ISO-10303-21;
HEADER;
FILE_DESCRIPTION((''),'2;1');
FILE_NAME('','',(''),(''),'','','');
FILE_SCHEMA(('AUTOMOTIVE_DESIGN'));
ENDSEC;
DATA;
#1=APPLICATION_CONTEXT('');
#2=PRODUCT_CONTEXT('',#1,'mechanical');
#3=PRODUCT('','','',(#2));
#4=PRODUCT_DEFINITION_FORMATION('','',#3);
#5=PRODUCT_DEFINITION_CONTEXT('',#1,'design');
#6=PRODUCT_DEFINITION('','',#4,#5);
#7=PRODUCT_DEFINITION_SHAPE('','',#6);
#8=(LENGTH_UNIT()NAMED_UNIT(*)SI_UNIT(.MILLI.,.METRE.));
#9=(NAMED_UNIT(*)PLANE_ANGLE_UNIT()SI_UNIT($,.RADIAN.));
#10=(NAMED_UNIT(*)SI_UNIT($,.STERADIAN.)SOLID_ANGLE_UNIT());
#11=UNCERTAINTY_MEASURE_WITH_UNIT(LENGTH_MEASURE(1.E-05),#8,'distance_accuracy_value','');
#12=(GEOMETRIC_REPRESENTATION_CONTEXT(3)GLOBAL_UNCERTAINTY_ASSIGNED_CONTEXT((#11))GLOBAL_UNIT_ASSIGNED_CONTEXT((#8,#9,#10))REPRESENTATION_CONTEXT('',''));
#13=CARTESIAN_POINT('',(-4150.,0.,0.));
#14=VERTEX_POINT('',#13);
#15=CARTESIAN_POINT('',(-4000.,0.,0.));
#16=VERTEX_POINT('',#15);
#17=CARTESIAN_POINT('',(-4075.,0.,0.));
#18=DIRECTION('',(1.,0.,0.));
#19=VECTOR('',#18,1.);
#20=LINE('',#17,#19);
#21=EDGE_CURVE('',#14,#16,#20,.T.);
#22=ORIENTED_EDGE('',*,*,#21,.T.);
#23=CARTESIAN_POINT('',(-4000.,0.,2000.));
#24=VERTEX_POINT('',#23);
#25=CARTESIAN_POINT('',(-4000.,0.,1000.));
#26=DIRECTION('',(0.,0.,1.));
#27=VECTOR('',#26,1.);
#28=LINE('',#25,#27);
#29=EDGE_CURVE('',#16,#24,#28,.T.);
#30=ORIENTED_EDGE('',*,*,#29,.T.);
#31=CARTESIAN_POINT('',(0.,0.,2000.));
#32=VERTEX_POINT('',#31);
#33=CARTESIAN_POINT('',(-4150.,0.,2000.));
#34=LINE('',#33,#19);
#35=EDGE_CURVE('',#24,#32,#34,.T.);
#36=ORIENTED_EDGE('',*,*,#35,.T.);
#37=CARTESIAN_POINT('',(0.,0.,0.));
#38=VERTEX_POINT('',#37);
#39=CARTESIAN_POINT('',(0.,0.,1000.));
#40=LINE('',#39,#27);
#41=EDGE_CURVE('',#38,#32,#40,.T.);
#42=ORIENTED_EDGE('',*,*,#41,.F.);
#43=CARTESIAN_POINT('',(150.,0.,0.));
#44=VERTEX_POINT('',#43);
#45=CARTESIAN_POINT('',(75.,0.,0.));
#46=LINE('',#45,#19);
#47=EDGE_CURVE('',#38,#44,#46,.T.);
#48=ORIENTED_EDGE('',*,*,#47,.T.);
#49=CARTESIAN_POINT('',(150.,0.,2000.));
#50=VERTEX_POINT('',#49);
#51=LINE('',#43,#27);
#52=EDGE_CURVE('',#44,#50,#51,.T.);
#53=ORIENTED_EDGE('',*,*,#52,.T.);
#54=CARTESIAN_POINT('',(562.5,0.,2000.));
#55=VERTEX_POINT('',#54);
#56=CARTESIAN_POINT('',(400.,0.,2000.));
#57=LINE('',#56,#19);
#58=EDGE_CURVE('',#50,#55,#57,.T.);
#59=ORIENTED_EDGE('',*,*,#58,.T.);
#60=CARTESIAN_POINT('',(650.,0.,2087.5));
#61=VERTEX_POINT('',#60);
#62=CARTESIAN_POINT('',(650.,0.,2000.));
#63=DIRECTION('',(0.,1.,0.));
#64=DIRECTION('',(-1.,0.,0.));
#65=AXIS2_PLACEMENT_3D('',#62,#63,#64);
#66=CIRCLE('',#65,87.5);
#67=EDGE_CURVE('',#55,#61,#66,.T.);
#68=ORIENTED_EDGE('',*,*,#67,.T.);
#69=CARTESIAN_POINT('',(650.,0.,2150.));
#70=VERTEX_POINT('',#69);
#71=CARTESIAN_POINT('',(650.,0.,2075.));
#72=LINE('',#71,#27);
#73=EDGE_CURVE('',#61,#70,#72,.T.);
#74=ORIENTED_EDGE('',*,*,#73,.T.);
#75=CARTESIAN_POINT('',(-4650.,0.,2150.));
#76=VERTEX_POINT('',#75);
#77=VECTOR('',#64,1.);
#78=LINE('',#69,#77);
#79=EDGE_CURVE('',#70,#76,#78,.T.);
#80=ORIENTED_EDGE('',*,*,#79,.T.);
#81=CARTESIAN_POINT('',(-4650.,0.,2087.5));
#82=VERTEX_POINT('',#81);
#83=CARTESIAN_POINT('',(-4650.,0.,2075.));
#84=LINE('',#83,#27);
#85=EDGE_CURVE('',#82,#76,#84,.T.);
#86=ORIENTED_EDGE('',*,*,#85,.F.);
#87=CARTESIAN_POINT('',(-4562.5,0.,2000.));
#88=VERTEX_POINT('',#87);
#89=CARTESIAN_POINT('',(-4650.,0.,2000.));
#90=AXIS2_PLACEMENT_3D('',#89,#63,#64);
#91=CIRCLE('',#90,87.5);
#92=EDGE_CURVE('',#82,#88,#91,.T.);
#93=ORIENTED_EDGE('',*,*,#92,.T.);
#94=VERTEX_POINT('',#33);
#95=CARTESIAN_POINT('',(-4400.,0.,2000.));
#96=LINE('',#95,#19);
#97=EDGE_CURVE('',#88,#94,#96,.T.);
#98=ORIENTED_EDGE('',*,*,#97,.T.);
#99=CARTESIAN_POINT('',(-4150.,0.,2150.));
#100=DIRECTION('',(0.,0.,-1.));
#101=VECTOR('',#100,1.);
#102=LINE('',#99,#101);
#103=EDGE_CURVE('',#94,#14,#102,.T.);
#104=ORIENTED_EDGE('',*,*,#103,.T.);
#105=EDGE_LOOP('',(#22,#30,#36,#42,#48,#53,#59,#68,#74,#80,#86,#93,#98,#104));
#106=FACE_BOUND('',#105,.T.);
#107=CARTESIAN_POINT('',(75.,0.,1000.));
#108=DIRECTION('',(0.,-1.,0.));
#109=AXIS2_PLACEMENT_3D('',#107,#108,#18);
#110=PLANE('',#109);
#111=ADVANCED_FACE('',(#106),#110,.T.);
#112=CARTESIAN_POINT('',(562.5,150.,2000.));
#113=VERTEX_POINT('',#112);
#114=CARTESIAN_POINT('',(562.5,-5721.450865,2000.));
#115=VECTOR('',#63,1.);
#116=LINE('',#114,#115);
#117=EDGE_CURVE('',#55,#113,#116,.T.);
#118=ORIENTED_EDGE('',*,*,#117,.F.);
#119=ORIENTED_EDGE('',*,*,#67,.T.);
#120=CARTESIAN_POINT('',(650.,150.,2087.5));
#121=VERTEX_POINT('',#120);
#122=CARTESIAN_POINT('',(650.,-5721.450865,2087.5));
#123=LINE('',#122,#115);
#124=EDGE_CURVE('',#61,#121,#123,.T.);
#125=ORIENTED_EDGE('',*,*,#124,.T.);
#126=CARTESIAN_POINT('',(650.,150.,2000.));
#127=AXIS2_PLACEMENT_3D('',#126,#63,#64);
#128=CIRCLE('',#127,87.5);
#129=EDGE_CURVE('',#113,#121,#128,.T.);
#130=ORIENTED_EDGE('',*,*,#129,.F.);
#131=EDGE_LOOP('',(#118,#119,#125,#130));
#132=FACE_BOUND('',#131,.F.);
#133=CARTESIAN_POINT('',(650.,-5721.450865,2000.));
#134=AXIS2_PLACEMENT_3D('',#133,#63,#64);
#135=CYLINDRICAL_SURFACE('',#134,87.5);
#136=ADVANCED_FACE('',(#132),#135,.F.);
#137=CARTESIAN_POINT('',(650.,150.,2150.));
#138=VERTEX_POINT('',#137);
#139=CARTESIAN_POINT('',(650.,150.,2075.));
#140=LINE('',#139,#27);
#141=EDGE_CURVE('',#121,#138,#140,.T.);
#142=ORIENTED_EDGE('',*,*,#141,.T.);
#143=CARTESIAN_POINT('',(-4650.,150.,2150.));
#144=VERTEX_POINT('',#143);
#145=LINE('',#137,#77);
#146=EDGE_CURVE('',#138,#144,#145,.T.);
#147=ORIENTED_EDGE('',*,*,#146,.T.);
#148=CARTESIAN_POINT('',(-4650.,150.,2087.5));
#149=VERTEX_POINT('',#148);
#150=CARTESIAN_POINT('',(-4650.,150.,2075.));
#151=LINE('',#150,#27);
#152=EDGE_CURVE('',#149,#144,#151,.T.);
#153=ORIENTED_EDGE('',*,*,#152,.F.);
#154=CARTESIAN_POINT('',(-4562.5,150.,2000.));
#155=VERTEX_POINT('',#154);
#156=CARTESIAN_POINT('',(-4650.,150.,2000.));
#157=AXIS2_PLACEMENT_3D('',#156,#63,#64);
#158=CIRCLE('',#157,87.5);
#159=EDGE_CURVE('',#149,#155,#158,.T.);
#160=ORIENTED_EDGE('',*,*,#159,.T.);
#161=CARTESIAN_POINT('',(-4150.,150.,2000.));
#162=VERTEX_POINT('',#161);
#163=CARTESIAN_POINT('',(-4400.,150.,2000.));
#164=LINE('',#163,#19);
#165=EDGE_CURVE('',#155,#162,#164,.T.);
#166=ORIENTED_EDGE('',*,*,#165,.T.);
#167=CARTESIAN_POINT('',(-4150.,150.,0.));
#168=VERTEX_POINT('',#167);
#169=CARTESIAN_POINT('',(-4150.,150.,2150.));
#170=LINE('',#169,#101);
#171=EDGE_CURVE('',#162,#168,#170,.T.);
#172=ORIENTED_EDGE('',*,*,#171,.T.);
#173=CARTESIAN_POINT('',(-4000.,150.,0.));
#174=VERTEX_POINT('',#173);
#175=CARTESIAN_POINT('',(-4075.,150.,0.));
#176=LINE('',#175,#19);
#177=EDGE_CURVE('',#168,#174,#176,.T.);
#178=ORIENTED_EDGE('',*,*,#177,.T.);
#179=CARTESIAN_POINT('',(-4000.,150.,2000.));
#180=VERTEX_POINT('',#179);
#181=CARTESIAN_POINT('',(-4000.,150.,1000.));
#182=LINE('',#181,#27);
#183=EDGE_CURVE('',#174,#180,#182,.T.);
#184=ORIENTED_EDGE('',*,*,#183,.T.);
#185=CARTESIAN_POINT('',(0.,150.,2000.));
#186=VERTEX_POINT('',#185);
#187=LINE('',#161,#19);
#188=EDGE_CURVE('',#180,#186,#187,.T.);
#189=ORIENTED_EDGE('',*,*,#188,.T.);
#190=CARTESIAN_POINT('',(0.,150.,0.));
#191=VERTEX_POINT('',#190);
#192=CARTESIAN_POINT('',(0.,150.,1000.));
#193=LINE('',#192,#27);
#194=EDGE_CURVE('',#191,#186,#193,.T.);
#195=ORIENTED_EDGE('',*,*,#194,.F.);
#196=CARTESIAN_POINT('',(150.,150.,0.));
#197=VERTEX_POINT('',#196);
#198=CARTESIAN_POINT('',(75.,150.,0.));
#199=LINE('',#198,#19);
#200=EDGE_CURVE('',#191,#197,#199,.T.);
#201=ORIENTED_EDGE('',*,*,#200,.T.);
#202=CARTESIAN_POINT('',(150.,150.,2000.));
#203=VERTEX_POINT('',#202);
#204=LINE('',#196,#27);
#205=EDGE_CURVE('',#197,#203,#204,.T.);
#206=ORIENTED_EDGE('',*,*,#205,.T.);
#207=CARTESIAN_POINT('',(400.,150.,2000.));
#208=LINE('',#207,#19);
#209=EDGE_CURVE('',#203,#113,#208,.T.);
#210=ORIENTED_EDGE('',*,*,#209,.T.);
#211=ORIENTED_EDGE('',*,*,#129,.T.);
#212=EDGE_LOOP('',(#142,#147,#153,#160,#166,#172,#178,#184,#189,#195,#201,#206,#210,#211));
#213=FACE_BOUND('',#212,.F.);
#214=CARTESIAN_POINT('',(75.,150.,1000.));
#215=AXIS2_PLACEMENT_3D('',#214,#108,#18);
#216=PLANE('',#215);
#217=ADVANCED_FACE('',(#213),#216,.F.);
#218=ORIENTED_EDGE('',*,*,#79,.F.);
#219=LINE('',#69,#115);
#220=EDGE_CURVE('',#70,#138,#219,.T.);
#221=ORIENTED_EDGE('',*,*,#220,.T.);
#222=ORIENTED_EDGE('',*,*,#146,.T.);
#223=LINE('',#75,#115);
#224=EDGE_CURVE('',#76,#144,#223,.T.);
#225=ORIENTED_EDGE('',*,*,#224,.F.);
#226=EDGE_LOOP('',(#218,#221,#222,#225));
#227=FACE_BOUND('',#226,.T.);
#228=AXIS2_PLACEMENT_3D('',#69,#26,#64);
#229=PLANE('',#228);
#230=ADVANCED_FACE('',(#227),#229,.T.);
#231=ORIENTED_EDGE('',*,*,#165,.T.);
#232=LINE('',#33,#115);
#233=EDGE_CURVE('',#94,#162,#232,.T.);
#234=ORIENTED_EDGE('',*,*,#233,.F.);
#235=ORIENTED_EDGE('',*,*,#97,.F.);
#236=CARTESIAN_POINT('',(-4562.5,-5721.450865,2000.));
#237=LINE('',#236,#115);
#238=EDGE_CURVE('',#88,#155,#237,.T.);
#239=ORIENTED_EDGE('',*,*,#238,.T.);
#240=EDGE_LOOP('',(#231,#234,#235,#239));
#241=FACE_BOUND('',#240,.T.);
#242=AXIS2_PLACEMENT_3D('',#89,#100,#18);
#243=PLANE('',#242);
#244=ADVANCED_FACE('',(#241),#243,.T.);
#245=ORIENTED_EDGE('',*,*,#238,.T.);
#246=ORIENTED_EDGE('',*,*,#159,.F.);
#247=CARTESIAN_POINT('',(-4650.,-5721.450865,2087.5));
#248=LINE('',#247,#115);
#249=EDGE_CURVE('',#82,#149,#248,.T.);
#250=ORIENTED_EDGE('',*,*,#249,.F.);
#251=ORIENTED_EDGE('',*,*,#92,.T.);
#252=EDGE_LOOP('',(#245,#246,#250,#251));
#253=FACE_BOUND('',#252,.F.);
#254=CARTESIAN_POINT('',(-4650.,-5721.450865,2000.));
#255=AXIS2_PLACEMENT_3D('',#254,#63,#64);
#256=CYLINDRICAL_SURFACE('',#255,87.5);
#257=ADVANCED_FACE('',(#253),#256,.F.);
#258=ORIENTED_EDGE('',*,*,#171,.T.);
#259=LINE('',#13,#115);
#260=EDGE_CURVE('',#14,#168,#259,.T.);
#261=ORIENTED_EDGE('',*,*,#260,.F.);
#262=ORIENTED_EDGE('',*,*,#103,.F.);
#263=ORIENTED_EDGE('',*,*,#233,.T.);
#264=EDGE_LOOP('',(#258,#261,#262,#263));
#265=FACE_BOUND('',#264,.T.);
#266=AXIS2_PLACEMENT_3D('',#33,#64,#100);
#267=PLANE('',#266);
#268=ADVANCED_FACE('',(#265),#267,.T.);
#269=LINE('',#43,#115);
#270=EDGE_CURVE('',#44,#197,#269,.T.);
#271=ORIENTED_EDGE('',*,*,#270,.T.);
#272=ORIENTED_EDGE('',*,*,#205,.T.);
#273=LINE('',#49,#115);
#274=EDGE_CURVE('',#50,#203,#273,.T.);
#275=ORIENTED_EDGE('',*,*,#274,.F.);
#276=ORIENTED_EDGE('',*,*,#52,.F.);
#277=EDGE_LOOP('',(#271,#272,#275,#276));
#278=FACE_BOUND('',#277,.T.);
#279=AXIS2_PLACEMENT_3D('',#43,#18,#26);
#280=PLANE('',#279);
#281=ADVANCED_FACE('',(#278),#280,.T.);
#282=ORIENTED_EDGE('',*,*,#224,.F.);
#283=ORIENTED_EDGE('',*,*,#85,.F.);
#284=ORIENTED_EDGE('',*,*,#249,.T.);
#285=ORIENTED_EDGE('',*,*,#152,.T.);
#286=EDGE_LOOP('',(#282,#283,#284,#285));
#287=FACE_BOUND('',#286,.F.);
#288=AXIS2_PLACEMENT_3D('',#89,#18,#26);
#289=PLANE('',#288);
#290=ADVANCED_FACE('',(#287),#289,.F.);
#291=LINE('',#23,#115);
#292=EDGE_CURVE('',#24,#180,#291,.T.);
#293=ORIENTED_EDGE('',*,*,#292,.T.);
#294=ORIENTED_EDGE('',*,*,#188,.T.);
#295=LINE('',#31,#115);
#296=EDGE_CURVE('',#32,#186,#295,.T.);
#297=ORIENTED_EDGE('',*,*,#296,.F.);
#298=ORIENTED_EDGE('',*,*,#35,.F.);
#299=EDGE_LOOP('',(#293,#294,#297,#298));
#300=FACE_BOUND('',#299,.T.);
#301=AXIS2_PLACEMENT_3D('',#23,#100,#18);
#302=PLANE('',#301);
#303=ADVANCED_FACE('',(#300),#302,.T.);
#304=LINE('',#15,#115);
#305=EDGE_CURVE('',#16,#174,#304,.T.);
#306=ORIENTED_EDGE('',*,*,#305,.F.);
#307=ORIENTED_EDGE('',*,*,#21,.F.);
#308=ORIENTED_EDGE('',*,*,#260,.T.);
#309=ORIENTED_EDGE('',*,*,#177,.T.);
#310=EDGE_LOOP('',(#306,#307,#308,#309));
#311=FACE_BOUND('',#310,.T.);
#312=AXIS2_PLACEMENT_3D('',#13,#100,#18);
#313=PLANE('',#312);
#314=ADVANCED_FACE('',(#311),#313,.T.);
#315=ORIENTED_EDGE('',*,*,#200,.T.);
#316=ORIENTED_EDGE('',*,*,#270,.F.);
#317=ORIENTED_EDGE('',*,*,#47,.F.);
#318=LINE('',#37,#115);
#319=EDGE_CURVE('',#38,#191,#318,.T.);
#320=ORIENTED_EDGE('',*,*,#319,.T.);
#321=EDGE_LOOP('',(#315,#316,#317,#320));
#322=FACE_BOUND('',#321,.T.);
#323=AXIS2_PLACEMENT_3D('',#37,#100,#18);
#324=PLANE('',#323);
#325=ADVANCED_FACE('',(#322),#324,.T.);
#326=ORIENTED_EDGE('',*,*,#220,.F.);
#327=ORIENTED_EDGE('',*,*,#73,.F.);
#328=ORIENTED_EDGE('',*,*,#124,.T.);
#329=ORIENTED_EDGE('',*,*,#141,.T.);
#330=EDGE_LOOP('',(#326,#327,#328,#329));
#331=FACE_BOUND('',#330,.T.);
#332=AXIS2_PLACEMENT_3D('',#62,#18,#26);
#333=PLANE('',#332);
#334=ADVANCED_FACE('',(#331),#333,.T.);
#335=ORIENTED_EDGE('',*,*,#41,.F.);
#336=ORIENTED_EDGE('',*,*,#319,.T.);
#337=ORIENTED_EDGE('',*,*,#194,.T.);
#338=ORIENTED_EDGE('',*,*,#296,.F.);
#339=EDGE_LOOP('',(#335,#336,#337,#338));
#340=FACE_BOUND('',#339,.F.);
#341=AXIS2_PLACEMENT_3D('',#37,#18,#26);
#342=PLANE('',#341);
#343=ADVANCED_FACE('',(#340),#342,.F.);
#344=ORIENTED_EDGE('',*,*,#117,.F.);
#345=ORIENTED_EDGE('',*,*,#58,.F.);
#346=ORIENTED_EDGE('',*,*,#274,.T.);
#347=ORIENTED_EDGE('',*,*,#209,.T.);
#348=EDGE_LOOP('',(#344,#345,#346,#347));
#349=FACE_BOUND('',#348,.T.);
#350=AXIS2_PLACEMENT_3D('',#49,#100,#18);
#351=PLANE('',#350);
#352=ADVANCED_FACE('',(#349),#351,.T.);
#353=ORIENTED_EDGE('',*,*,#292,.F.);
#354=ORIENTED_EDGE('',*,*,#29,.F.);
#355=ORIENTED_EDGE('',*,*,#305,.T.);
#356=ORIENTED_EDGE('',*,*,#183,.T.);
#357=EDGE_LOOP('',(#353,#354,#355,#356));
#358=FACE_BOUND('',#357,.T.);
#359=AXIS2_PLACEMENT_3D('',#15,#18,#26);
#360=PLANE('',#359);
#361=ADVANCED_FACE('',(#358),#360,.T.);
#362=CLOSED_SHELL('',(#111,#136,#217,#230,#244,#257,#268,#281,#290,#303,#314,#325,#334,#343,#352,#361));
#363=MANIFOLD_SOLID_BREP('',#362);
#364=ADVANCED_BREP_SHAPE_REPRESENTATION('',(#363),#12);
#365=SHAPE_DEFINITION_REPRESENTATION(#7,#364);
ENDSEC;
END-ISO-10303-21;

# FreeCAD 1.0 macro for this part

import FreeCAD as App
import Part
import Sketcher

V = App.Vector


def add_polygon(sketch, points):
    """Adds a closed chain of lines whose ends are joined by coincident constraints."""
    first, n = sketch.GeometryCount, len(points)
    for a, b in zip(points, points[1:] + points[:1]):
        sketch.addGeometry(Part.LineSegment(App.Vector(*a, 0), App.Vector(*b, 0)), False)
    for i in range(n):
        sketch.addConstraint(Sketcher.Constraint("Coincident", first + i, 2, first + (i + 1) % n, 1))

doc = App.newDocument("Part")
body = doc.addObject("PartDesign::Body", "Body")

# Sketch on XZ plane
sketch1 = body.newObject("Sketcher::SketchObject", "Sketch")
sketch1.AttachmentSupport = (doc.getObject("XZ_Plane"), [""])
sketch1.MapMode = "FlatFace"
add_polygon(sketch1, [(0, 2000), (0, 0), (150, 0), (150, 2000), (650, 2000), (650, 2150), (-4650, 2150), (-4650, 2000), (-4150, 2000), (-4150, 0), (-4000, 0), (-4000, 2000)])  # lines 0-11
sketch1.addConstraint([
    Sketcher.Constraint("Vertical", 0),
    Sketcher.Constraint("Horizontal", 1),
    Sketcher.Constraint("Vertical", 2),
    Sketcher.Constraint("Horizontal", 3),
    Sketcher.Constraint("Vertical", 4),
    Sketcher.Constraint("Horizontal", 5),
    Sketcher.Constraint("Vertical", 6),
    Sketcher.Constraint("Horizontal", 7),
    Sketcher.Constraint("Vertical", 8),
    Sketcher.Constraint("Horizontal", 9),
    Sketcher.Constraint("Vertical", 10),
    Sketcher.Constraint("Horizontal", 11),
    Sketcher.Constraint("Coincident", 0, 2, -1, 1),
    Sketcher.Constraint("PointOnObject", 8, 2, -1),
    Sketcher.Constraint("Horizontal", 3, 2, 6, 2),
    Sketcher.Constraint("Horizontal", 7, 2, 10, 2),
    Sketcher.Constraint("Equal", 3, 7),
    Sketcher.Constraint("Equal", 1, 9),
    Sketcher.Constraint("Equal", 9, 4),
    Sketcher.Constraint("DistanceX", 1, 1, 1, 2, 150.0),
    Sketcher.Constraint("DistanceX", 3, 1, 3, 2, 500.0),
    Sketcher.Constraint("DistanceX", 5, 2, 5, 1, 5300.0),
    Sketcher.Constraint("DistanceY", 0, 2, 0, 1, 2000.0),
])
pad1 = body.newObject("PartDesign::Pad", "Pad")
pad1.Profile = sketch1
pad1.Length = 150
pad1.Reversed = True

# Sketch on XZ plane
sketch2 = body.newObject("Sketcher::SketchObject", "Sketch001")
sketch2.AttachmentSupport = (doc.getObject("XZ_Plane"), [""])
sketch2.MapMode = "FlatFace"
sketch2.addGeometry(Part.Circle(V(-4650, 2000, 0), V(0, 0, 1), 87.5), False)
sketch2.addConstraint([
    Sketcher.Constraint("Diameter", 0, 175.0),
    Sketcher.Constraint("DistanceX", 0, 3, -1, 1, 4650.0),
    Sketcher.Constraint("DistanceY", -1, 1, 0, 3, 2000.0),
])
doc.recompute()
hole = body.newObject("PartDesign::Hole", "Hole")
hole.Profile = sketch2
hole.ThreadType = "None"
hole.Diameter = 175
hole.DepthType = "ThroughAll"

# Sketch on XZ plane
sketch3 = body.newObject("Sketcher::SketchObject", "Sketch002")
sketch3.AttachmentSupport = (doc.getObject("XZ_Plane"), [""])
sketch3.MapMode = "FlatFace"
sketch3.addGeometry(Part.Circle(V(650, 2000, 0), V(0, 0, 1), 87.5), False)
sketch3.addConstraint([
    Sketcher.Constraint("Diameter", 0, 175.0),
    Sketcher.Constraint("DistanceX", -1, 1, 0, 3, 650.0),
    Sketcher.Constraint("DistanceY", -1, 1, 0, 3, 2000.0),
])
doc.recompute()
hole2 = body.newObject("PartDesign::Hole", "Hole001")
hole2.Profile = sketch3
hole2.ThreadType = "None"
hole2.Diameter = 175
hole2.DepthType = "ThroughAll"

doc.recompute()
